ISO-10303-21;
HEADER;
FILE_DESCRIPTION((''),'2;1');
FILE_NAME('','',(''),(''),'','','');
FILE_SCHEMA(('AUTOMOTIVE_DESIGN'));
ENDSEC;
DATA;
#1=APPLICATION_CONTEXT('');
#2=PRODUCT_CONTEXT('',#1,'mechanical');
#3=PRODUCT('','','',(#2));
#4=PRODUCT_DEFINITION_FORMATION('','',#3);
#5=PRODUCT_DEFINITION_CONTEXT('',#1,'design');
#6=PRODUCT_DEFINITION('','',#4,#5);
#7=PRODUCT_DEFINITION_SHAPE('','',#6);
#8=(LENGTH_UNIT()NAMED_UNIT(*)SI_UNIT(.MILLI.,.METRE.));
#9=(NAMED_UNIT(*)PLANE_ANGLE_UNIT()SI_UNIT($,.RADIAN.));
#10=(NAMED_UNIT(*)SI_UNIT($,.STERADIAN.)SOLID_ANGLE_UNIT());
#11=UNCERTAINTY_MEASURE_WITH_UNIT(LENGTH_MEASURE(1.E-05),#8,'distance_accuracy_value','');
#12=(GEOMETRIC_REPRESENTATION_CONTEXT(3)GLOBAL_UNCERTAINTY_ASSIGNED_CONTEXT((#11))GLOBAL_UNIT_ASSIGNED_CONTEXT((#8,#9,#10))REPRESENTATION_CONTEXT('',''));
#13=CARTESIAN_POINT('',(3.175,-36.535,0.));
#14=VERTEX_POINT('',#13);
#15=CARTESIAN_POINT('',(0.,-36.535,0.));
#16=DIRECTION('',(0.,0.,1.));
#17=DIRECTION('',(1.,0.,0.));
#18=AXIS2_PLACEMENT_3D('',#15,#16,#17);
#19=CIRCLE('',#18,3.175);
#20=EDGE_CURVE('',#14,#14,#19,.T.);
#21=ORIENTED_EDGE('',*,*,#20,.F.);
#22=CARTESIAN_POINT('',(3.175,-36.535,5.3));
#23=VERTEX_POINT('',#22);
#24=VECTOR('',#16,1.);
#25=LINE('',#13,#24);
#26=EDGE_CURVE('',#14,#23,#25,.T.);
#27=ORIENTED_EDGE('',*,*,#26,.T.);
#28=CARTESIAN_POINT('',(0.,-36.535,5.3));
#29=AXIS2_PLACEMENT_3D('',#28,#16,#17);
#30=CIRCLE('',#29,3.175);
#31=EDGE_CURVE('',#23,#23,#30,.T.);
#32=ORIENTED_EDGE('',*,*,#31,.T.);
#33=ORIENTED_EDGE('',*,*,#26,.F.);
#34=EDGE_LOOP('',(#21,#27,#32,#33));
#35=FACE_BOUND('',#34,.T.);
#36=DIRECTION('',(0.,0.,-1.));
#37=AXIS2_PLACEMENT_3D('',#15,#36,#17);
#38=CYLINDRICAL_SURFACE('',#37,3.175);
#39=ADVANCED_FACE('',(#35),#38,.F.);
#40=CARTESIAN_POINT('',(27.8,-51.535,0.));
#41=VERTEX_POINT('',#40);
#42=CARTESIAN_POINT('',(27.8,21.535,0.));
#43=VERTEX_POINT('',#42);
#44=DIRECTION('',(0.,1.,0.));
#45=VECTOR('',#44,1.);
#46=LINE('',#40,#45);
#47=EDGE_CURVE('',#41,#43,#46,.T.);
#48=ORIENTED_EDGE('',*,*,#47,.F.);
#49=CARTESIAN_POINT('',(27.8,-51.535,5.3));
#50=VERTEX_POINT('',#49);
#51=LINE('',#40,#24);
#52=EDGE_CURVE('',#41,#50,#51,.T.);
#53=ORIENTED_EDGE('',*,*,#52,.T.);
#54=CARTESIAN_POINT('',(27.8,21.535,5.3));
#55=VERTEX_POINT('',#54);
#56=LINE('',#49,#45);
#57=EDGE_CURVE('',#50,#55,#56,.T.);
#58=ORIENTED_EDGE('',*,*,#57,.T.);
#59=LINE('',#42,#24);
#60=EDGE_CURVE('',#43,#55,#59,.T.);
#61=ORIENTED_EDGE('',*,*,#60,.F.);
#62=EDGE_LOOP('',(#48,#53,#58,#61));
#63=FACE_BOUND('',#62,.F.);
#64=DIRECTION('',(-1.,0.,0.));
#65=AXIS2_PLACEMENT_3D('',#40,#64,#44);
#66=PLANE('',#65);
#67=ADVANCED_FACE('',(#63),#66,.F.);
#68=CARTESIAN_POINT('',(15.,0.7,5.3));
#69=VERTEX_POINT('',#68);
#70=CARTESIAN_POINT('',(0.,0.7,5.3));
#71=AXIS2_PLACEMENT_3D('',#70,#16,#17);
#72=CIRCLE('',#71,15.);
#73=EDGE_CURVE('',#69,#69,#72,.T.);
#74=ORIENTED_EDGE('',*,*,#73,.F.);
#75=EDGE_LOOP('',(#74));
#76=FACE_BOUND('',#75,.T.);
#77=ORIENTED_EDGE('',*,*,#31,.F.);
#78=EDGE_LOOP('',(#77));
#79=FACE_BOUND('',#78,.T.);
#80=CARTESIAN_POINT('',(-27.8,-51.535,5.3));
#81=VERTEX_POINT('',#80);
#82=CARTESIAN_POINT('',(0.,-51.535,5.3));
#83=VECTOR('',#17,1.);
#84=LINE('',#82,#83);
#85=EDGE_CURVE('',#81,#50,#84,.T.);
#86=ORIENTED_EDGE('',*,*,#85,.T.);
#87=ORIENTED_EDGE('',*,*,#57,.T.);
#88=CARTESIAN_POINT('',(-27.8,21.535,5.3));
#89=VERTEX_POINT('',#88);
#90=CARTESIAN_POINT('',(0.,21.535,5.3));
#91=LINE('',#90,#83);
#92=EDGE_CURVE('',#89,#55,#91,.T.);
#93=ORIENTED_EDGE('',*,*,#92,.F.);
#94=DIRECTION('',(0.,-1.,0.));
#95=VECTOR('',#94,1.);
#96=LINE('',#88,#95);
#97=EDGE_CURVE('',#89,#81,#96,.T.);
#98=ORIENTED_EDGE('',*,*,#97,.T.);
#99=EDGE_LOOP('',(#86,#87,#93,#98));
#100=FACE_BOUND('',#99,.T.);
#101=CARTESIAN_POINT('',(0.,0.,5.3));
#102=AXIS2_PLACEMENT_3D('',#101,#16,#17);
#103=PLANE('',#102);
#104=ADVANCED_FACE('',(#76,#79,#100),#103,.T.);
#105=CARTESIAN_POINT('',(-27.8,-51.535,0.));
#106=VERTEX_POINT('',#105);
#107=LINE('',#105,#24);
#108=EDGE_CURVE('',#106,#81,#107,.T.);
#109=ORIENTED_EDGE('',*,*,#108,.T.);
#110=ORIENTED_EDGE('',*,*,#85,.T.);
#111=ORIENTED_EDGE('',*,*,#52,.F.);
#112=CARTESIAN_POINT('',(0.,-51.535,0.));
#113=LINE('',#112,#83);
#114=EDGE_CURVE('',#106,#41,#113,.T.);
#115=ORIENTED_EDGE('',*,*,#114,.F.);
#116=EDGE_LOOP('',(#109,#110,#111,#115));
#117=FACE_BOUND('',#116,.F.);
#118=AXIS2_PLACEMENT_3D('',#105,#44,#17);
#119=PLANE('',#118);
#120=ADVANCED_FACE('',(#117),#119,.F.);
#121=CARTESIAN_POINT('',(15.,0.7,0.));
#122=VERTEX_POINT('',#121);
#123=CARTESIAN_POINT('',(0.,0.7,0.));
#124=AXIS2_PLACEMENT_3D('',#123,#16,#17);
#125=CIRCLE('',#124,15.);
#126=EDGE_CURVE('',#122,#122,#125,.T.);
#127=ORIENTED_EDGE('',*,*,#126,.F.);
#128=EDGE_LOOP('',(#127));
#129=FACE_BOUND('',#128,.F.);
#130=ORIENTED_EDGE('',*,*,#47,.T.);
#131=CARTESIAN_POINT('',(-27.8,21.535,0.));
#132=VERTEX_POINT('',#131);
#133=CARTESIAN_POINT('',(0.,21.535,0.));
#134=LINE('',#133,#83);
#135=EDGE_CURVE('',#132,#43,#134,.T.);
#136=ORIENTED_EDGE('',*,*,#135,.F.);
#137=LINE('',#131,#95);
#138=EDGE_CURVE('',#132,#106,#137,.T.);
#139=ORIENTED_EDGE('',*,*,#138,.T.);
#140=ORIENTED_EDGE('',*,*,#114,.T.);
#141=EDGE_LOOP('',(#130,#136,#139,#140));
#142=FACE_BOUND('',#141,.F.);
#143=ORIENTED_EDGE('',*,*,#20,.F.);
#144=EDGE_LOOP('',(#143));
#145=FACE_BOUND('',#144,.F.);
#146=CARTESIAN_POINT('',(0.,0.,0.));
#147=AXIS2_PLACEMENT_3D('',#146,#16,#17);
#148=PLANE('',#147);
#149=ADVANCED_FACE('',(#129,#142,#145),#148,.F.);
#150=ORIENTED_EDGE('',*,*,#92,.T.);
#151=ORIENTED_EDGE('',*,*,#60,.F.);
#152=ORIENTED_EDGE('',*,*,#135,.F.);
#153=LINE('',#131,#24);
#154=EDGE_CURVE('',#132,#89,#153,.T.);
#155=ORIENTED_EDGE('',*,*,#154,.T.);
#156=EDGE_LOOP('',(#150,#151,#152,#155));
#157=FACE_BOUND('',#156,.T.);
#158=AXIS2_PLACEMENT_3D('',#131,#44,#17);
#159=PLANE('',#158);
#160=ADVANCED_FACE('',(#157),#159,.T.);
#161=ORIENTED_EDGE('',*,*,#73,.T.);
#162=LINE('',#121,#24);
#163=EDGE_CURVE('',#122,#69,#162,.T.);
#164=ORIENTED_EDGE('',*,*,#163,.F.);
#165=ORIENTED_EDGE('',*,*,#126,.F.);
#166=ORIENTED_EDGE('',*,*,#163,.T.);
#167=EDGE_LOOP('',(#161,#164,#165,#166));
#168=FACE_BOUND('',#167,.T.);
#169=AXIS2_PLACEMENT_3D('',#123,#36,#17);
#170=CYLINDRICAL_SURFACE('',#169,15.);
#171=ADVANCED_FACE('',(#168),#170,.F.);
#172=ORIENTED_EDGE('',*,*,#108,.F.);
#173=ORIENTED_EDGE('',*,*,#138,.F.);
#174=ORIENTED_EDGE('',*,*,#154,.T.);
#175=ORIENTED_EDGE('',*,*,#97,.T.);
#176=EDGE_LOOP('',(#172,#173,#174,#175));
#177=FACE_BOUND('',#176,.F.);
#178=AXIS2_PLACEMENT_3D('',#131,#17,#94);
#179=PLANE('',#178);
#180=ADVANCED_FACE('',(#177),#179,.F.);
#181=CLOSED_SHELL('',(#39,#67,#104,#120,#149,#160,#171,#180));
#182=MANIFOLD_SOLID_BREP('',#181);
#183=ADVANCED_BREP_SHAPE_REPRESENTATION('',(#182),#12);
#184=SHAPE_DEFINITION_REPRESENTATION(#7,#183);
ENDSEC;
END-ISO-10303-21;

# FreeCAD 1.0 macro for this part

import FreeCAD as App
import Part
import Sketcher

V = App.Vector


def add_polygon(sketch, points):
    """Adds a closed chain of lines whose ends are joined by coincident constraints."""
    first, n = sketch.GeometryCount, len(points)
    for a, b in zip(points, points[1:] + points[:1]):
        sketch.addGeometry(Part.LineSegment(App.Vector(*a, 0), App.Vector(*b, 0)), False)
    for i in range(n):
        sketch.addConstraint(Sketcher.Constraint("Coincident", first + i, 2, first + (i + 1) % n, 1))

doc = App.newDocument("Part")
body = doc.addObject("PartDesign::Body", "Body")

# Sketch on XY plane
sketch1 = body.newObject("Sketcher::SketchObject", "Sketch")
sketch1.AttachmentSupport = (doc.getObject("XY_Plane"), [""])
sketch1.MapMode = "FlatFace"
add_polygon(sketch1, [(-27.8, 21.535), (-27.8, -51.535), (27.8, -51.535), (27.8, 21.535)])  # lines 0-3
sketch1.addGeometry(Part.Circle(V(0, -36.535, 0), V(0, 0, 1), 3.175), False)  # 4
sketch1.addGeometry(Part.Circle(V(0, 0.7, 0), V(0, 0, 1), 15), False)  # 5
sketch1.addConstraint([
    Sketcher.Constraint("Vertical", 0),
    Sketcher.Constraint("Horizontal", 1),
    Sketcher.Constraint("Vertical", 2),
    Sketcher.Constraint("Horizontal", 3),
    Sketcher.Constraint("PointOnObject", 4, 3, -2),
    Sketcher.Constraint("PointOnObject", 5, 3, -2),
    Sketcher.Constraint("Diameter", 5, 30.0),
    Sketcher.Constraint("Diameter", 4, 6.35),
    Sketcher.Constraint("DistanceX", 1, 1, 1, 2, 55.6),
    Sketcher.Constraint("DistanceY", 0, 2, 4, 3, 15.0),
    Sketcher.Constraint("DistanceY", 0, 2, 0, 1, 73.07),
    Sketcher.Constraint("DistanceY", -1, 1, 5, 3, 0.7),
    Sketcher.Constraint("DistanceX", 0, 2, -1, 1, 27.8),
    Sketcher.Constraint("DistanceY", 4, 3, -1, 1, 36.535),
])
pad1 = body.newObject("PartDesign::Pad", "Pad")
pad1.Profile = sketch1
pad1.Length = 5.3

doc.recompute()
